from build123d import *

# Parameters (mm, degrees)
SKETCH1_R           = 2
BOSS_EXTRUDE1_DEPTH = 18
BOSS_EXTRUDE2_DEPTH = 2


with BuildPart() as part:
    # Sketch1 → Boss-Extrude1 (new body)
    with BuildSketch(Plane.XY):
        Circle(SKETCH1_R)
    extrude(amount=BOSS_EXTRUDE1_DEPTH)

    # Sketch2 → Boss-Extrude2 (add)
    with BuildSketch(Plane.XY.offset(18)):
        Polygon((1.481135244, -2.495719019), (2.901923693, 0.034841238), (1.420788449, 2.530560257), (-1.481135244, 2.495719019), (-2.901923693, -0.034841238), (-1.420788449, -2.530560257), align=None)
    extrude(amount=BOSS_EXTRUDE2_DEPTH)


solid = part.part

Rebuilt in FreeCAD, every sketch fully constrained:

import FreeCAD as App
import Part
import Sketcher

V = App.Vector

doc = App.newDocument("Part")
params = doc.addObject("Spreadsheet::Sheet", "Params")
for row, (alias, value) in enumerate([
    ("sketch1_diameter", "4 mm"),
    ("pad1_length", "18 mm"),
    ("pad2_length", "2 mm"),
], start=1):
    params.set(f"A{row}", alias)
    params.set(f"B{row}", "=" + value)
    params.setAlias(f"B{row}", alias)

body = doc.addObject("PartDesign::Body", "Body")

sketch1 = body.newObject("Sketcher::SketchObject", "Sketch")
sketch1.AttachmentSupport = (doc.getObject("XY_Plane"), [""])
sketch1.MapMode = "FlatFace"
sketch1.addGeometry(Part.Circle(V(0, 0, 0), V(0, 0, 1), 2), False)
sketch1.addConstraint(Sketcher.Constraint("Coincident", 0, 3, -1, 1))
sketch1.addConstraint(Sketcher.Constraint("Diameter", 0, 4.0))
sketch1.setExpression("Constraints[1]", "Params.sketch1_diameter")
pad1 = body.newObject("PartDesign::Pad", "Pad")
pad1.Profile = sketch1
pad1.setExpression("Length", "Params.pad1_length")

sketch2 = body.newObject("Sketcher::SketchObject", "Sketch001")
sketch2.AttachmentSupport = (doc.getObject("XY_Plane"), [""])
sketch2.MapMode = "FlatFace"
sketch2.AttachmentOffset = App.Placement(V(0, 0, 18), App.Rotation())
sketch2.addGeometry(Part.LineSegment(V(1.5, -2.5, 0), V(2.9, 0, 0)), False)
sketch2.addGeometry(Part.LineSegment(V(2.9, 0, 0), V(1.4, 2.5, 0)), False)
sketch2.addGeometry(Part.LineSegment(V(1.4, 2.5, 0), V(-1.5, 2.5, 0)), False)
sketch2.addGeometry(Part.LineSegment(V(-1.5, 2.5, 0), V(-2.9, 0, 0)), False)
sketch2.addGeometry(Part.LineSegment(V(-2.9, 0, 0), V(-1.4, -2.5, 0)), False)
sketch2.addGeometry(Part.LineSegment(V(-1.4, -2.5, 0), V(1.5, -2.5, 0)), False)
sketch2.addConstraint(Sketcher.Constraint("Coincident", 0, 2, 1, 1))
sketch2.addConstraint(Sketcher.Constraint("Coincident", 1, 2, 2, 1))
sketch2.addConstraint(Sketcher.Constraint("Coincident", 2, 2, 3, 1))
sketch2.addConstraint(Sketcher.Constraint("Coincident", 3, 2, 4, 1))
sketch2.addConstraint(Sketcher.Constraint("Coincident", 4, 2, 5, 1))
sketch2.addConstraint(Sketcher.Constraint("Coincident", 5, 2, 0, 1))
sketch2.addConstraint(Sketcher.Constraint("Symmetric", 0, 2, 3, 2, -1, 1))
sketch2.addConstraint(Sketcher.Constraint("Symmetric", 1, 2, 4, 2, -1, 1))
sketch2.addConstraint(Sketcher.Constraint("Symmetric", 2, 2, 5, 2, -1, 1))
sketch2.addConstraint(Sketcher.Constraint("Equal", 0, 1))
sketch2.addConstraint(Sketcher.Constraint("Equal", 1, 2))
sketch2.addConstraint(Sketcher.Constraint("DistanceY", 3, 2, 1, 2, 2.565401))
sketch2.addConstraint(Sketcher.Constraint("DistanceY", -1, 1, 0, 2, 0.034841))
sketch2.addConstraint(Sketcher.Constraint("DistanceX", -1, 1, 1, 2, 1.420788))
sketch2.addConstraint(Sketcher.Constraint("DistanceY", -1, 1, 2, 2, 2.495719))
pad2 = body.newObject("PartDesign::Pad", "Pad001")
pad2.Profile = sketch2
pad2.setExpression("Length", "Params.pad2_length")

doc.recompute()
